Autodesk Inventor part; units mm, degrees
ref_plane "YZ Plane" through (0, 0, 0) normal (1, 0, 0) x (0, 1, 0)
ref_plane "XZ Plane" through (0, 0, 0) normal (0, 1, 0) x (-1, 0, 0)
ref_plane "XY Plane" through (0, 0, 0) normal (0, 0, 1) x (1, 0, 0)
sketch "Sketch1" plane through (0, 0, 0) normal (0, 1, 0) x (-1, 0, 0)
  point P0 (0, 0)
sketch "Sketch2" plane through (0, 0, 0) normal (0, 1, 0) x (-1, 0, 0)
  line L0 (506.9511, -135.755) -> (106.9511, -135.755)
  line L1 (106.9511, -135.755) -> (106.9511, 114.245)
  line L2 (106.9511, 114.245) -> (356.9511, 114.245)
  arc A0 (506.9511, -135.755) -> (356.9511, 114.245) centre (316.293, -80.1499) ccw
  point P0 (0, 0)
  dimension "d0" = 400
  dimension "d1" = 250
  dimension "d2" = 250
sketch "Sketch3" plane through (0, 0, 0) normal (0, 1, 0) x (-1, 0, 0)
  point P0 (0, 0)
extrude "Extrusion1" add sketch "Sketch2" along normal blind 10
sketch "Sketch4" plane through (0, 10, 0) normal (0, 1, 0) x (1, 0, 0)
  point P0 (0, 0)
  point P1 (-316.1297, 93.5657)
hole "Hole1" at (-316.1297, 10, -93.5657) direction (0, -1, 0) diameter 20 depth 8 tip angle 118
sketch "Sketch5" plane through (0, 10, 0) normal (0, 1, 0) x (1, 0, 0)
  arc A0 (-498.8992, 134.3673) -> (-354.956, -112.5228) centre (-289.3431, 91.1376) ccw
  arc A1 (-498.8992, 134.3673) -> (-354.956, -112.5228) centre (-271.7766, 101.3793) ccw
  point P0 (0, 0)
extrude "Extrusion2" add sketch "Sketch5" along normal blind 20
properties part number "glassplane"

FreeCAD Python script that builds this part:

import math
import FreeCAD as App
import Part
import Sketcher
from FreeCAD import Vector
Q = App.Units.Quantity

doc = App.newDocument("Part")
body = doc.addObject("PartDesign::Body", "Body")

# Sketch on XZ plane
sketch1 = doc.addObject("Sketcher::SketchObject", "Sketch")
body.addObject(sketch1)
sketch1.AttachmentSupport = (doc.XZ_Plane, [""])
sketch1.MapMode = "FlatFace"
sketch1.addGeometry([
    Part.LineSegment(Vector(-107, -136, 0), Vector(-507, -136, 0)),
    Part.ArcOfCircle(Part.Circle(Vector(-316, -80, 0), Vector(0, 0, 1), 199), math.radians(102), math.radians(196)),
    Part.LineSegment(Vector(-357, 114, 0), Vector(-107, 114, 0)),
    Part.LineSegment(Vector(-107, 114, 0), Vector(-107, -136, 0)),
], False)
sketch1.addConstraint([
    Sketcher.Constraint("Coincident", 0, 2, 1, 2),
    Sketcher.Constraint("Coincident", 1, 1, 2, 1),
    Sketcher.Constraint("Coincident", 2, 2, 3, 1),
    Sketcher.Constraint("Coincident", 3, 2, 0, 1),
    Sketcher.Constraint("Horizontal", 0),
    Sketcher.Constraint("Horizontal", 2),
    Sketcher.Constraint("Vertical", 3),
    Sketcher.Constraint("Equal", 2, 3),
    Sketcher.Constraint("DistanceX", 0, 2, 0, 1, Q("400 mm")),
    Sketcher.Constraint("DistanceX", 2, 1, 2, 2, Q("250 mm")),
    Sketcher.Constraint("Radius", 1, Q("198.6012 mm")),
    Sketcher.Constraint("DistanceY", 1, 3, -1, 1, Q("80.15 mm")),
    Sketcher.Constraint("DistanceX", 1, 3, -1, 1, Q("316.293 mm")),
])
pad1 = doc.addObject("PartDesign::Pad", "Pad")
body.addObject(pad1)
pad1.Profile = sketch1
pad1.Length = 10
pad1.Reversed = True

# Sketch on XZ plane
sketch2 = doc.addObject("Sketcher::SketchObject", "Sketch001")
body.addObject(sketch2)
sketch2.AttachmentSupport = (doc.XZ_Plane, [""])
sketch2.MapMode = "FlatFace"
sketch2.AttachmentOffset = App.Placement(Vector(0, 0, -10), App.Rotation())
sketch2.addGeometry(Part.Circle(Vector(-316, -94, 0), Vector(0, 0, 1), 10), False)
sketch2.addConstraint([
    Sketcher.Constraint("Diameter", 0, Q("20 mm")),
    Sketcher.Constraint("DistanceX", 0, 3, -1, 1, Q("316.1297 mm")),
    Sketcher.Constraint("DistanceY", 0, 3, -1, 1, Q("93.5657 mm")),
])
doc.recompute()
hole = doc.addObject("PartDesign::Hole", "Hole")
body.addObject(hole)
hole.Profile = sketch2
hole.ThreadType = "None"
hole.Diameter = 20
hole.DepthType = "Dimension"
hole.Depth = 8
hole.DrillPoint = "Angled"
hole.DrillPointAngle = 118
hole.Reversed = True

# Sketch on XZ plane
sketch3 = doc.addObject("Sketcher::SketchObject", "Sketch002")
body.addObject(sketch3)
sketch3.AttachmentSupport = (doc.XZ_Plane, [""])
sketch3.MapMode = "FlatFace"
sketch3.AttachmentOffset = App.Placement(Vector(0, 0, -10), App.Rotation())
sketch3.addGeometry([
    Part.ArcOfCircle(Part.Circle(Vector(-272, -101, 0), Vector(0, 0, 1), 230), math.radians(111), math.radians(188)),
    Part.ArcOfCircle(Part.Circle(Vector(-289, -91, 0), Vector(0, 0, 1), 214), math.radians(108), math.radians(192)),
], False)
sketch3.addConstraint([
    Sketcher.Constraint("Coincident", 0, 1, 1, 1),
    Sketcher.Constraint("Coincident", 1, 2, 0, 2),
    Sketcher.Constraint("Radius", 0, Q("229.5057 mm")),
    Sketcher.Constraint("Radius", 1, Q("213.9686 mm")),
    Sketcher.Constraint("DistanceY", 1, 2, 0, 1, Q("246.89 mm")),
    Sketcher.Constraint("DistanceX", 1, 3, -1, 1, Q("289.343 mm")),
    Sketcher.Constraint("DistanceX", 0, 1, -1, 1, Q("354.956 mm")),
    Sketcher.Constraint("DistanceY", 0, 3, -1, 1, Q("101.3793 mm")),
])
pad2 = doc.addObject("PartDesign::Pad", "Pad001")
body.addObject(pad2)
pad2.Profile = sketch3
pad2.Length = 20
pad2.Reversed = True

doc.recompute()
